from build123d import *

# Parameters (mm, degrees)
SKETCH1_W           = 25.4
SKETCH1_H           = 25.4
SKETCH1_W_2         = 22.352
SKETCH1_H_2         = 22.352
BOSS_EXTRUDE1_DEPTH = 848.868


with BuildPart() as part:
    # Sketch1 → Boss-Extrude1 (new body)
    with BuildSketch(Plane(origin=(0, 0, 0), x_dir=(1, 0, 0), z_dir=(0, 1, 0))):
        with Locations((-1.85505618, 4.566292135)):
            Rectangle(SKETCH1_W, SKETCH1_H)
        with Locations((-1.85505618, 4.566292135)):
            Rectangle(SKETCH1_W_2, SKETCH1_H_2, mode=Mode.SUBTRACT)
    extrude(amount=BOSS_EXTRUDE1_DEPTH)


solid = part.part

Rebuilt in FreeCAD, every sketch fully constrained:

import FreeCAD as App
import Part
import Sketcher

V = App.Vector
Q = App.Units.Quantity


def add_polygon(sketch, points):
    """Adds a closed chain of lines whose ends are joined by coincident constraints."""
    first, n = sketch.GeometryCount, len(points)
    for a, b in zip(points, points[1:] + points[:1]):
        sketch.addGeometry(Part.LineSegment(App.Vector(*a, 0), App.Vector(*b, 0)), False)
    for i in range(n):
        sketch.addConstraint(Sketcher.Constraint("Coincident", first + i, 2, first + (i + 1) % n, 1))

doc = App.newDocument("Part")
body = doc.addObject("PartDesign::Body", "Body")

# Sketch on XZ plane
sketch1 = doc.addObject("Sketcher::SketchObject", "Sketch")
body.addObject(sketch1)
sketch1.AttachmentSupport = (doc.XZ_Plane, [""])
sketch1.MapMode = "FlatFace"
add_polygon(sketch1, [(-15, -17), (-15, 8), (11, 8), (11, -17)])  # lines 0-3
add_polygon(sketch1, [(9, 7), (-13, 7), (-13, -16), (9, -16)])  # lines 4-7
sketch1.addConstraint(Sketcher.Constraint("Vertical", 0))
sketch1.addConstraint(Sketcher.Constraint("Horizontal", 1))
sketch1.addConstraint(Sketcher.Constraint("Vertical", 2))
sketch1.addConstraint(Sketcher.Constraint("Horizontal", 3))
sketch1.addConstraint(Sketcher.Constraint("Horizontal", 4))
sketch1.addConstraint(Sketcher.Constraint("Vertical", 5))
sketch1.addConstraint(Sketcher.Constraint("Horizontal", 6))
sketch1.addConstraint(Sketcher.Constraint("Vertical", 7))
sketch1.addConstraint(Sketcher.Constraint("Equal", 3, 0))
sketch1.addConstraint(Sketcher.Constraint("Equal", 6, 5))
sketch1.addConstraint(Sketcher.Constraint("DistanceX", 1, 1, 1, 2, Q("1 in")))
sketch1.addConstraint(Sketcher.Constraint("DistanceX", 4, 2, 4, 1, Q("0.88 in")))
sketch1.addConstraint(Sketcher.Constraint("DistanceX", 0, 2, 4, 2, Q("0.06 in")))
sketch1.addConstraint(Sketcher.Constraint("DistanceY", 4, 2, 0, 2, Q("0.06 in")))
sketch1.addConstraint(Sketcher.Constraint("DistanceX", 0, 2, -1, 1, Q("14.555056 mm")))
sketch1.addConstraint(Sketcher.Constraint("DistanceY", -1, 1, 0, 2, Q("8.133708 mm")))
pad1 = doc.addObject("PartDesign::Pad", "Pad")
body.addObject(pad1)
pad1.Profile = sketch1
pad1.Length = Q("33.42 in")
pad1.Reversed = True

doc.recompute()
